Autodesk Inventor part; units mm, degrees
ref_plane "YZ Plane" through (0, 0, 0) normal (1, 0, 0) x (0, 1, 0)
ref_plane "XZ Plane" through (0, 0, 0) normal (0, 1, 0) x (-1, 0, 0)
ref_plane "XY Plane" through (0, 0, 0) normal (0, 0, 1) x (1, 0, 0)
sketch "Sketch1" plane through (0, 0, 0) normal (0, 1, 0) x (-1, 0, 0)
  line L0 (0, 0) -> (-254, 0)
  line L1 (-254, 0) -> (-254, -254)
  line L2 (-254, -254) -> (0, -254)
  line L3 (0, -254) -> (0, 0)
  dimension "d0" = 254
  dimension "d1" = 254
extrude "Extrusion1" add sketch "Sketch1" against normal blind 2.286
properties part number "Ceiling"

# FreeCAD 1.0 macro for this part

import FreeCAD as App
import Part
import Sketcher

V = App.Vector
Q = App.Units.Quantity


def add_polygon(sketch, points):
    """Adds a closed chain of lines whose ends are joined by coincident constraints."""
    first, n = sketch.GeometryCount, len(points)
    for a, b in zip(points, points[1:] + points[:1]):
        sketch.addGeometry(Part.LineSegment(App.Vector(*a, 0), App.Vector(*b, 0)), False)
    for i in range(n):
        sketch.addConstraint(Sketcher.Constraint("Coincident", first + i, 2, first + (i + 1) % n, 1))

doc = App.newDocument("Part")
body = doc.addObject("PartDesign::Body", "Body")

# Sketch on XZ plane
sketch1 = body.newObject("Sketcher::SketchObject", "Sketch")
sketch1.AttachmentSupport = (doc.getObject("XZ_Plane"), [""])
sketch1.MapMode = "FlatFace"
add_polygon(sketch1, [(0, -254), (0, 0), (254, 0), (254, -254)])  # lines 0-3
sketch1.addConstraint(Sketcher.Constraint("Vertical", 0))
sketch1.addConstraint(Sketcher.Constraint("Horizontal", 1))
sketch1.addConstraint(Sketcher.Constraint("Vertical", 2))
sketch1.addConstraint(Sketcher.Constraint("Horizontal", 3))
sketch1.addConstraint(Sketcher.Constraint("Coincident", 0, 2, -1, 1))
sketch1.addConstraint(Sketcher.Constraint("Equal", 3, 0))
sketch1.addConstraint(Sketcher.Constraint("DistanceX", 1, 1, 1, 2, Q("10 in")))
pad1 = body.newObject("PartDesign::Pad", "Pad")
pad1.Profile = sketch1
pad1.Length = Q("0.09 in")

doc.recompute()
